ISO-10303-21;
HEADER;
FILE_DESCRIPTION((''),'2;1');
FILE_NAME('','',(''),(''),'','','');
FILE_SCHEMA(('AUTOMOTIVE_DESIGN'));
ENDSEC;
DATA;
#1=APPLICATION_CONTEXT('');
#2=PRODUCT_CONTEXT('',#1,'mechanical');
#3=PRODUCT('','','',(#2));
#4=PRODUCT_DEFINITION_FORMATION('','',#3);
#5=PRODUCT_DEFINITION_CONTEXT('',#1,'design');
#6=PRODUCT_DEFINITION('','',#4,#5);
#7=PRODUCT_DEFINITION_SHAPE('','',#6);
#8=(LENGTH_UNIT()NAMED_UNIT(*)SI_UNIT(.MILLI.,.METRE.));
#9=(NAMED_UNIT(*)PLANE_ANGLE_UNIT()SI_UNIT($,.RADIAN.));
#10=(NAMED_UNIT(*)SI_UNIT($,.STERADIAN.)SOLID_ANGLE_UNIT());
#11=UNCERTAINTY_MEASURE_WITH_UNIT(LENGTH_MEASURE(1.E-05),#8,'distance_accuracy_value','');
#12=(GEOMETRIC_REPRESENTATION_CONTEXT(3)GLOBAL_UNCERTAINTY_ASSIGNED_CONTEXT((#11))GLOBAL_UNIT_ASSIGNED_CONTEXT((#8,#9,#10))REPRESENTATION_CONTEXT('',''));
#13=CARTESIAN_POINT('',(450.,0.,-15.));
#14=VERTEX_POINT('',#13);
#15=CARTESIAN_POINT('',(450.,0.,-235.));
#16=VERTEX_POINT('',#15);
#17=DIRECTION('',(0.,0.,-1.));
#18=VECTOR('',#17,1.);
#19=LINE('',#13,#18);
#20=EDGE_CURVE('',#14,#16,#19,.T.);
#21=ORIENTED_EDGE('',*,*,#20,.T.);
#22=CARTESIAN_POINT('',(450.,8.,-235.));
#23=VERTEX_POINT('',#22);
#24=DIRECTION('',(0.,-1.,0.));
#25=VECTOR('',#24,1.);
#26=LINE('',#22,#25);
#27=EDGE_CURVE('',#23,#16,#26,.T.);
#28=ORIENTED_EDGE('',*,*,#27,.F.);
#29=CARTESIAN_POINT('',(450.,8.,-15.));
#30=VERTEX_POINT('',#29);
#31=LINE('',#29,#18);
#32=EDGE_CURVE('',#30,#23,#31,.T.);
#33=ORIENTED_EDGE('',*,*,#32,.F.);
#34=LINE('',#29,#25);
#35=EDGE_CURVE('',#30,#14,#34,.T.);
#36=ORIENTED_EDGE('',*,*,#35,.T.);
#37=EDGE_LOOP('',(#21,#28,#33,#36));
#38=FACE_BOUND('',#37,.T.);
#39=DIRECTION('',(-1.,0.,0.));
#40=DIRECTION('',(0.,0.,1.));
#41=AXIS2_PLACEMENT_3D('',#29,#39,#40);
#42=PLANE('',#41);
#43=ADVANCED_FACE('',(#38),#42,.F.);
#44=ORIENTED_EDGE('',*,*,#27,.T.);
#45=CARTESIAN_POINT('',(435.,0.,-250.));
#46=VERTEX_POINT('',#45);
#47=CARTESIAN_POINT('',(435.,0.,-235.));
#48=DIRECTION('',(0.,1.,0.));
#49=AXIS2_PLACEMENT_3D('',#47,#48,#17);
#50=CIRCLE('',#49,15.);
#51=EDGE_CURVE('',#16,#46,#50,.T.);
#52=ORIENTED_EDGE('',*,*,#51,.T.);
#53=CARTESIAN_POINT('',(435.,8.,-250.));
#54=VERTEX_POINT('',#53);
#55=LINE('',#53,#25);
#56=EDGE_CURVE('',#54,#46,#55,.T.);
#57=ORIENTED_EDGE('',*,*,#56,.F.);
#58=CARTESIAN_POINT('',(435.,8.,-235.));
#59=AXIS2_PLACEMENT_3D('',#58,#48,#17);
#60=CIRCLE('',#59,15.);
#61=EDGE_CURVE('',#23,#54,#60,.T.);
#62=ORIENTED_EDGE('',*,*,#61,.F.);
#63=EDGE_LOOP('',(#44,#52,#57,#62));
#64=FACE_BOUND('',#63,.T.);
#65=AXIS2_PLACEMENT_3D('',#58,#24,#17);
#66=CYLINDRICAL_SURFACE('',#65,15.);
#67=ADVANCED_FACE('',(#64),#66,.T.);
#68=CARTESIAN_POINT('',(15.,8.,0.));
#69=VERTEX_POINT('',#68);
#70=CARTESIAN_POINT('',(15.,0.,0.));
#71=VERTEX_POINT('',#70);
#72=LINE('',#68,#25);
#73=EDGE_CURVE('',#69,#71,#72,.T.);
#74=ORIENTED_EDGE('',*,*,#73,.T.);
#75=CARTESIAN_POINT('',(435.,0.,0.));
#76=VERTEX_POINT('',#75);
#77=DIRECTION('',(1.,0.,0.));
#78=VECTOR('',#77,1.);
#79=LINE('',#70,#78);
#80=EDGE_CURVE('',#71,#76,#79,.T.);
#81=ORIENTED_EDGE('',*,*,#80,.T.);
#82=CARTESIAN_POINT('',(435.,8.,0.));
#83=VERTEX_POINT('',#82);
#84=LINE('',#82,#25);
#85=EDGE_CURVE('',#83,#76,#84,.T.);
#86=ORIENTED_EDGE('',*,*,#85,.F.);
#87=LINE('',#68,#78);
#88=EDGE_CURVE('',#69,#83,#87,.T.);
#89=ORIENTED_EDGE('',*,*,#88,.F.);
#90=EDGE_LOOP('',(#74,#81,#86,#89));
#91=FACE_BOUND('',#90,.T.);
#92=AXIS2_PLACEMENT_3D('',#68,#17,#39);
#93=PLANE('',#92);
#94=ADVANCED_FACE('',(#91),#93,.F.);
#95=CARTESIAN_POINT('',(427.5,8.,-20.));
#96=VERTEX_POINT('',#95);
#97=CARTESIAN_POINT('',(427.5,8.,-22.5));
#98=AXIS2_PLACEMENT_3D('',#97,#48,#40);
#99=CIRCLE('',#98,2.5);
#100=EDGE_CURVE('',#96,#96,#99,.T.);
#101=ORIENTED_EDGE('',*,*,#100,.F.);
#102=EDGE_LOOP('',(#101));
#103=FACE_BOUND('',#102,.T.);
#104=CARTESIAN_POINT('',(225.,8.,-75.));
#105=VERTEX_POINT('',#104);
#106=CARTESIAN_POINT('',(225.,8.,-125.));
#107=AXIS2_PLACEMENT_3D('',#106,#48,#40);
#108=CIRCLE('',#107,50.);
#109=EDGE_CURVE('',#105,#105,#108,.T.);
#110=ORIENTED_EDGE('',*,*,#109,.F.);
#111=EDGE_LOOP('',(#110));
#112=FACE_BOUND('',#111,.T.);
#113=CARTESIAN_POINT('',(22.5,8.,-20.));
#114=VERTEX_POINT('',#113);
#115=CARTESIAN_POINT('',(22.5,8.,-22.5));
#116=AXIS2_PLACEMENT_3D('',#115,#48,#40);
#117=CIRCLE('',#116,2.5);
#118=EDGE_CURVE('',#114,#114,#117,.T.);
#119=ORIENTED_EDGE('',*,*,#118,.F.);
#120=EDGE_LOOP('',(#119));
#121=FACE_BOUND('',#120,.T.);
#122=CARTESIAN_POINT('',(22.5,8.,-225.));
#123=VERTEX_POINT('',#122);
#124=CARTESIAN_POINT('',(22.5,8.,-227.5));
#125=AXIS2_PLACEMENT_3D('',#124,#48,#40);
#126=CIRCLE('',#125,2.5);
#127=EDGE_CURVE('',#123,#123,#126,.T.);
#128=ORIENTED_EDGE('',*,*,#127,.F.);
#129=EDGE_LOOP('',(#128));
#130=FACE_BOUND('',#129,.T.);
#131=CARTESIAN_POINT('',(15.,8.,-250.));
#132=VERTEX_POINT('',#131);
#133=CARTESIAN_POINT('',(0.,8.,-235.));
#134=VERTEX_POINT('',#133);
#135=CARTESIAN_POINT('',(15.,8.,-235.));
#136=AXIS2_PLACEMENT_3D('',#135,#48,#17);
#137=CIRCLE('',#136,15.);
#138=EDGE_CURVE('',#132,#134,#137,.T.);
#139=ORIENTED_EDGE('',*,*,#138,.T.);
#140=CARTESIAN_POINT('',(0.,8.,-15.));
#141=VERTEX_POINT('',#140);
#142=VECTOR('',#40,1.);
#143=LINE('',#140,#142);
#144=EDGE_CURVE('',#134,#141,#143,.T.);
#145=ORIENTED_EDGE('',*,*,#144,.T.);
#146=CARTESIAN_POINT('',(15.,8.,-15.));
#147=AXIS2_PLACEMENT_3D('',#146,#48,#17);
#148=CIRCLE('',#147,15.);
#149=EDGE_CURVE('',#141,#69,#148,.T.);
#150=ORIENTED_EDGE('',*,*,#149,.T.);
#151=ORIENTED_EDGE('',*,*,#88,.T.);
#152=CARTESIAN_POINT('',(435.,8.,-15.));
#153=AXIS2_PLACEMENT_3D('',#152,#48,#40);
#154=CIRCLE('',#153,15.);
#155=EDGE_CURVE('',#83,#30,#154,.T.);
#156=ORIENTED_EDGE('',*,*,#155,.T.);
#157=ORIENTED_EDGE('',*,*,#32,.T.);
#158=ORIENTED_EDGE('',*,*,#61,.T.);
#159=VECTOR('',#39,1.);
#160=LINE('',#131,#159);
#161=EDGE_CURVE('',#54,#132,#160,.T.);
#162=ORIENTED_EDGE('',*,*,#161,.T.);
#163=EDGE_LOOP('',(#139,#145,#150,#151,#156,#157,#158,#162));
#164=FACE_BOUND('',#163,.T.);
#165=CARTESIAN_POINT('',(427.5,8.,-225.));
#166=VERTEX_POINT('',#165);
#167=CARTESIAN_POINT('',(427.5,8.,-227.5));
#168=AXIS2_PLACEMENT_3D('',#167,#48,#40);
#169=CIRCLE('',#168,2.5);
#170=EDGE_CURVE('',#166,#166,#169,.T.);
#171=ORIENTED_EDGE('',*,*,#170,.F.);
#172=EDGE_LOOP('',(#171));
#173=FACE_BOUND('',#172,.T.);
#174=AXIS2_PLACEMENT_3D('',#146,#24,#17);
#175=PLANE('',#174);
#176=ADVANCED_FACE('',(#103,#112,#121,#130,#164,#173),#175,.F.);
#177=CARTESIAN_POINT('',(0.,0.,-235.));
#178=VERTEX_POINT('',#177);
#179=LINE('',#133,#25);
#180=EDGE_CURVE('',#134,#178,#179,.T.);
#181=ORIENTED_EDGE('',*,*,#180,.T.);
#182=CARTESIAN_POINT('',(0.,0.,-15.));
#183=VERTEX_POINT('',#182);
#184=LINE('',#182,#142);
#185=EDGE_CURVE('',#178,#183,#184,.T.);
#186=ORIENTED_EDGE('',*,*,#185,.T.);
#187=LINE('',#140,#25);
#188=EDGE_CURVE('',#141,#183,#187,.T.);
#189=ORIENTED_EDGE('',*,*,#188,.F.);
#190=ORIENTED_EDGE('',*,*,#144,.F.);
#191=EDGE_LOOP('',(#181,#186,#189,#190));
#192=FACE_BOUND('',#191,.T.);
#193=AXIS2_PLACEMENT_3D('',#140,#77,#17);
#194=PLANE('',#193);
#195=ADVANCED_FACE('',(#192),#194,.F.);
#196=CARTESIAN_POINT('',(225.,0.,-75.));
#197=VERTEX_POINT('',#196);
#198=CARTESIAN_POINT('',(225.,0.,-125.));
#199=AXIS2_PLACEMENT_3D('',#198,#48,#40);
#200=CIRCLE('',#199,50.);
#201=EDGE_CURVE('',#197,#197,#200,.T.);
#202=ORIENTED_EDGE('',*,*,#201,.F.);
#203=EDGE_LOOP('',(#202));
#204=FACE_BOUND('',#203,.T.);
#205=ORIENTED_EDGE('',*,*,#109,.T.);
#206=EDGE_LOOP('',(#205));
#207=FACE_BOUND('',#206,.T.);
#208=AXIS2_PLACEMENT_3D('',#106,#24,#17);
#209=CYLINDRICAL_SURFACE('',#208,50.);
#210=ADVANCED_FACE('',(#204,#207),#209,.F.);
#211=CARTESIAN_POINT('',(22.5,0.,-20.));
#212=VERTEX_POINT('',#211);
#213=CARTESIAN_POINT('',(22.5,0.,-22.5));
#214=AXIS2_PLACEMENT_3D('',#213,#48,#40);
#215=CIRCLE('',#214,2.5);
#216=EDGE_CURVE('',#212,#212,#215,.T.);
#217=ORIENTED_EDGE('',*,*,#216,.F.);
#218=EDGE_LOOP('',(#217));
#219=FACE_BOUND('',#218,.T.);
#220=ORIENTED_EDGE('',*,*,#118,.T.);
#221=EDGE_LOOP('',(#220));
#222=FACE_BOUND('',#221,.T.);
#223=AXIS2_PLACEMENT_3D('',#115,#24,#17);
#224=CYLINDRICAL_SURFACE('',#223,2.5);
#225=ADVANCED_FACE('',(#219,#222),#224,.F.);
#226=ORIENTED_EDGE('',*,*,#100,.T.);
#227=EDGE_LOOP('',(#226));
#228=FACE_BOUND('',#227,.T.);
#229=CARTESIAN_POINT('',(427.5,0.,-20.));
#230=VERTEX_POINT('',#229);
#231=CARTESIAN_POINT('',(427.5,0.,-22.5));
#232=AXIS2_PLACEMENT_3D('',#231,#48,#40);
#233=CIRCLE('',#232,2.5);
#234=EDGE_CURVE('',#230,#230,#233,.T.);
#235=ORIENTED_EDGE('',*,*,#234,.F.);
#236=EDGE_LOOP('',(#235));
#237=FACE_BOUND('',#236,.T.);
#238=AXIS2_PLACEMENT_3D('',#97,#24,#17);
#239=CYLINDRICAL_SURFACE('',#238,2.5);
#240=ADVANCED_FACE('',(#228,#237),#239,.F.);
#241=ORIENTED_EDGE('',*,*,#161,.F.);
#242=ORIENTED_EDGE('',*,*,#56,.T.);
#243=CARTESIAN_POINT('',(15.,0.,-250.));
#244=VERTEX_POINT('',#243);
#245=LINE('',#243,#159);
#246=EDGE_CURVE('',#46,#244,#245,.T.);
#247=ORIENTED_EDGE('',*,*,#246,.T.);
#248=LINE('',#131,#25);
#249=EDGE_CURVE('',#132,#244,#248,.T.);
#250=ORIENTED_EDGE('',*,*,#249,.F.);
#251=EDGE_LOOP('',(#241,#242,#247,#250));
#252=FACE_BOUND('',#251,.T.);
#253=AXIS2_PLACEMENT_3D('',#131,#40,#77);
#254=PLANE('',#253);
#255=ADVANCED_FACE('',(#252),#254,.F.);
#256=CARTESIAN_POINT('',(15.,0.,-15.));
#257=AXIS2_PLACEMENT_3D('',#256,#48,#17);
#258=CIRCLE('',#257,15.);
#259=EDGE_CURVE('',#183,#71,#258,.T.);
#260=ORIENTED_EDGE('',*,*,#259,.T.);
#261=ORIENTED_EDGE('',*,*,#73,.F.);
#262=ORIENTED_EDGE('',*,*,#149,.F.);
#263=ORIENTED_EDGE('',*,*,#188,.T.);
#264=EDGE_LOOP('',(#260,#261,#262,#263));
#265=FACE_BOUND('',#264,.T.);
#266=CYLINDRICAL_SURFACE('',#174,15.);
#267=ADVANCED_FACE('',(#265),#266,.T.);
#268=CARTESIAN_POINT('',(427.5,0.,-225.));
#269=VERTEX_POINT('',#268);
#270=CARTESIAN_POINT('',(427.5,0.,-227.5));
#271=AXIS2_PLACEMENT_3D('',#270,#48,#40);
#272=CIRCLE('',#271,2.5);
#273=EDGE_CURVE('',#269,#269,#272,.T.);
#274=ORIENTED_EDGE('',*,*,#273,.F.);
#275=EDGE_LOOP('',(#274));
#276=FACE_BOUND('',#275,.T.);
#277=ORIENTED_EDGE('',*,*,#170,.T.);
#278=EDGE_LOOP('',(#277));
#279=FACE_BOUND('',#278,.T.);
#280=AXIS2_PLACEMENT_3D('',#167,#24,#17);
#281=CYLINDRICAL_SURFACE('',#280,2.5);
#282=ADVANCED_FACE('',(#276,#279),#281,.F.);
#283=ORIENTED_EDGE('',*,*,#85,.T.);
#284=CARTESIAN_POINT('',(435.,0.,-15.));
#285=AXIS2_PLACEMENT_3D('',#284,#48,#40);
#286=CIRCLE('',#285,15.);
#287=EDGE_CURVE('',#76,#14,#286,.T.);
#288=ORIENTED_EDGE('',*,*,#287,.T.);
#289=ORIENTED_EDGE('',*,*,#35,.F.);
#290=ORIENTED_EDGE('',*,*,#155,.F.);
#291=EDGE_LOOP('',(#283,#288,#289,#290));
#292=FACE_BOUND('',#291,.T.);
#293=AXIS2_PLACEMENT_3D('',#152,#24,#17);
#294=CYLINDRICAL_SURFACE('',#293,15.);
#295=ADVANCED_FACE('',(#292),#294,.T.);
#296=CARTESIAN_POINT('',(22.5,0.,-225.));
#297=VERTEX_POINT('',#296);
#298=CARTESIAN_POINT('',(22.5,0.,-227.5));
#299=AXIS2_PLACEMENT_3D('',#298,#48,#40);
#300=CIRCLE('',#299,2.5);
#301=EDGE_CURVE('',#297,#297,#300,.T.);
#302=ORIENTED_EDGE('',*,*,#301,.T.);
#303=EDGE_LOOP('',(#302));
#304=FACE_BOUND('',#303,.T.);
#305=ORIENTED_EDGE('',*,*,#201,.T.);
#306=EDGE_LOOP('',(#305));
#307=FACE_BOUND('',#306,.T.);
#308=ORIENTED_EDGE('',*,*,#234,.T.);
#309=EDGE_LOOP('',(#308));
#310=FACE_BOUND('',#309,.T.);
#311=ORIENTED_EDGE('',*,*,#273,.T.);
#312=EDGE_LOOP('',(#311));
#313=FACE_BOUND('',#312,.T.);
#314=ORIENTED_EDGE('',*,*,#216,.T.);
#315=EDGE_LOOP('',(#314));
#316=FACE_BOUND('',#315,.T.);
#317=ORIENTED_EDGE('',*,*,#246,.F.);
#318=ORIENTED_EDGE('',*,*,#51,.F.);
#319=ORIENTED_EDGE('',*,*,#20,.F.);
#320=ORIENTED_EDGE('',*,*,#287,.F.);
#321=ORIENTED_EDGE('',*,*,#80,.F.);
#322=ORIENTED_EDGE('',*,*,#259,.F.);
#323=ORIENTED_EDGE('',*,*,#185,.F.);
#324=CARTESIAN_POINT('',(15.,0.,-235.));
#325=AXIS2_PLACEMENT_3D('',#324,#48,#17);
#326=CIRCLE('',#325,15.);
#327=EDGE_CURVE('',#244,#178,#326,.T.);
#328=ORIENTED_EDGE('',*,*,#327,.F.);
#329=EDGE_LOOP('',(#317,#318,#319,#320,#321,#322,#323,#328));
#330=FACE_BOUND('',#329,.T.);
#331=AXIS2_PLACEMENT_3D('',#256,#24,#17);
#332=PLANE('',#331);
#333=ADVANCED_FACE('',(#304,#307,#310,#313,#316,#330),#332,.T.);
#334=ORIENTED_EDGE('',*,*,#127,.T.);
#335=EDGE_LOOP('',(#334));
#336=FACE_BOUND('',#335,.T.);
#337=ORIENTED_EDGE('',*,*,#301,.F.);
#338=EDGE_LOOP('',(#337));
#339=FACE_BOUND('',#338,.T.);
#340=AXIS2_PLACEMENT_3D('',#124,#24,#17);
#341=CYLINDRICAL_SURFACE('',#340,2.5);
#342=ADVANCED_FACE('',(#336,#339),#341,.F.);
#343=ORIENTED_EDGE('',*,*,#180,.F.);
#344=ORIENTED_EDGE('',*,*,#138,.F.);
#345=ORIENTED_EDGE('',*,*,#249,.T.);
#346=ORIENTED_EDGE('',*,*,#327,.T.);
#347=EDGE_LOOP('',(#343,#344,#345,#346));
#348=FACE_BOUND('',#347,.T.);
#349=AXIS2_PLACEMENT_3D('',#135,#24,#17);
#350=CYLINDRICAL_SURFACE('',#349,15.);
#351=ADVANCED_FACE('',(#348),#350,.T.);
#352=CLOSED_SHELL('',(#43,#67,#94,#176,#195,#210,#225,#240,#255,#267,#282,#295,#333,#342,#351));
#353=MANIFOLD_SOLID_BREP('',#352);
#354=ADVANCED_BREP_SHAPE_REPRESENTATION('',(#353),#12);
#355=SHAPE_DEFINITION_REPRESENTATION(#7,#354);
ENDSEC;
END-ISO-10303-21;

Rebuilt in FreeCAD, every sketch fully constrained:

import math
import FreeCAD as App
import Part
import Sketcher

V = App.Vector
Q = App.Units.Quantity

doc = App.newDocument("Part")
body = doc.addObject("PartDesign::Body", "Body")

# Sketch on XZ plane
sketch1 = body.newObject("Sketcher::SketchObject", "Sketch")
sketch1.AttachmentSupport = (doc.getObject("XZ_Plane"), [""])
sketch1.MapMode = "FlatFace"
sketch1.addGeometry([
    Part.LineSegment(V(15, 0, 0), V(435, 0, 0)),  # 0
    Part.ArcOfCircle(Part.Circle(V(435, -15, 0), V(0, 0, 1), 15), math.radians(0), math.radians(90)),  # 1
    Part.LineSegment(V(450, -15, 0), V(450, -235, 0)),  # 2
    Part.ArcOfCircle(Part.Circle(V(435, -235, 0), V(0, 0, 1), 15), math.radians(-90), math.radians(0)),  # 3
    Part.LineSegment(V(435, -250, 0), V(15, -250, 0)),  # 4
    Part.ArcOfCircle(Part.Circle(V(15, -235, 0), V(0, 0, 1), 15), math.radians(180), math.radians(270)),  # 5
    Part.LineSegment(V(0, -235, 0), V(0, -15, 0)),  # 6
    Part.ArcOfCircle(Part.Circle(V(15, -15, 0), V(0, 0, 1), 15), math.radians(90), math.radians(180)),  # 7
    Part.Circle(V(22.5, -22.5, 0), V(0, 0, 1), 2.5),  # 8
    Part.Circle(V(427.5, -22.5, 0), V(0, 0, 1), 2.5),  # 9
    Part.Circle(V(22.5, -227.5, 0), V(0, 0, 1), 2.5),  # 10
    Part.Circle(V(225, -125, 0), V(0, 0, 1), 50),  # 11
    Part.Circle(V(427.5, -227.5, 0), V(0, 0, 1), 2.5),  # 12
], False)
sketch1.addConstraint([
    Sketcher.Constraint("Tangent", 0, 2, 1, 2),
    Sketcher.Constraint("Tangent", 1, 1, 2, 1),
    Sketcher.Constraint("Tangent", 2, 2, 3, 2),
    Sketcher.Constraint("Tangent", 3, 1, 4, 1),
    Sketcher.Constraint("Tangent", 4, 2, 5, 2),
    Sketcher.Constraint("Tangent", 5, 1, 6, 1),
    Sketcher.Constraint("Tangent", 6, 2, 7, 2),
    Sketcher.Constraint("Tangent", 7, 1, 0, 1),
    Sketcher.Constraint("Horizontal", 0),
    Sketcher.Constraint("Vertical", 2),
    Sketcher.Constraint("Horizontal", 4),
    Sketcher.Constraint("Vertical", 6),
    Sketcher.Constraint("Equal", 1, 3),
    Sketcher.Constraint("Equal", 3, 5),
    Sketcher.Constraint("Equal", 5, 7),
    Sketcher.Constraint("Equal", 8, 9),
    Sketcher.Constraint("Equal", 9, 10),
    Sketcher.Constraint("Equal", 10, 12),
    Sketcher.Constraint("PointOnObject", 0, 2, -1),
    Sketcher.Constraint("PointOnObject", 5, 1, -2),
    Sketcher.Constraint("Horizontal", 8, 3, 9, 3),
    Sketcher.Constraint("Horizontal", 10, 3, 12, 3),
    Sketcher.Constraint("Vertical", 8, 3, 10, 3),
    Sketcher.Constraint("Vertical", 9, 3, 12, 3),
    Sketcher.Constraint("Diameter", 8, Q("5 mm")),
    Sketcher.Constraint("Diameter", 11, Q("100 mm")),
    Sketcher.Constraint("Radius", 1, Q("15 mm")),
    Sketcher.Constraint("DistanceX", 0, 1, 0, 2, Q("420 mm")),
    Sketcher.Constraint("DistanceY", 2, 2, 2, 1, Q("220 mm")),
    Sketcher.Constraint("DistanceX", -1, 1, 11, 3, Q("225 mm")),
    Sketcher.Constraint("DistanceY", 11, 3, -1, 1, Q("125 mm")),
    Sketcher.Constraint("DistanceX", 8, 3, 9, 3, Q("405 mm")),
    Sketcher.Constraint("DistanceY", 10, 3, 8, 3, Q("205 mm")),
    Sketcher.Constraint("DistanceX", -1, 1, 8, 3, Q("22.5 mm")),
    Sketcher.Constraint("DistanceY", 8, 3, -1, 1, Q("22.5 mm")),
])
pad1 = body.newObject("PartDesign::Pad", "Pad")
pad1.Profile = sketch1
pad1.Length = 8
pad1.Reversed = True

doc.recompute()
